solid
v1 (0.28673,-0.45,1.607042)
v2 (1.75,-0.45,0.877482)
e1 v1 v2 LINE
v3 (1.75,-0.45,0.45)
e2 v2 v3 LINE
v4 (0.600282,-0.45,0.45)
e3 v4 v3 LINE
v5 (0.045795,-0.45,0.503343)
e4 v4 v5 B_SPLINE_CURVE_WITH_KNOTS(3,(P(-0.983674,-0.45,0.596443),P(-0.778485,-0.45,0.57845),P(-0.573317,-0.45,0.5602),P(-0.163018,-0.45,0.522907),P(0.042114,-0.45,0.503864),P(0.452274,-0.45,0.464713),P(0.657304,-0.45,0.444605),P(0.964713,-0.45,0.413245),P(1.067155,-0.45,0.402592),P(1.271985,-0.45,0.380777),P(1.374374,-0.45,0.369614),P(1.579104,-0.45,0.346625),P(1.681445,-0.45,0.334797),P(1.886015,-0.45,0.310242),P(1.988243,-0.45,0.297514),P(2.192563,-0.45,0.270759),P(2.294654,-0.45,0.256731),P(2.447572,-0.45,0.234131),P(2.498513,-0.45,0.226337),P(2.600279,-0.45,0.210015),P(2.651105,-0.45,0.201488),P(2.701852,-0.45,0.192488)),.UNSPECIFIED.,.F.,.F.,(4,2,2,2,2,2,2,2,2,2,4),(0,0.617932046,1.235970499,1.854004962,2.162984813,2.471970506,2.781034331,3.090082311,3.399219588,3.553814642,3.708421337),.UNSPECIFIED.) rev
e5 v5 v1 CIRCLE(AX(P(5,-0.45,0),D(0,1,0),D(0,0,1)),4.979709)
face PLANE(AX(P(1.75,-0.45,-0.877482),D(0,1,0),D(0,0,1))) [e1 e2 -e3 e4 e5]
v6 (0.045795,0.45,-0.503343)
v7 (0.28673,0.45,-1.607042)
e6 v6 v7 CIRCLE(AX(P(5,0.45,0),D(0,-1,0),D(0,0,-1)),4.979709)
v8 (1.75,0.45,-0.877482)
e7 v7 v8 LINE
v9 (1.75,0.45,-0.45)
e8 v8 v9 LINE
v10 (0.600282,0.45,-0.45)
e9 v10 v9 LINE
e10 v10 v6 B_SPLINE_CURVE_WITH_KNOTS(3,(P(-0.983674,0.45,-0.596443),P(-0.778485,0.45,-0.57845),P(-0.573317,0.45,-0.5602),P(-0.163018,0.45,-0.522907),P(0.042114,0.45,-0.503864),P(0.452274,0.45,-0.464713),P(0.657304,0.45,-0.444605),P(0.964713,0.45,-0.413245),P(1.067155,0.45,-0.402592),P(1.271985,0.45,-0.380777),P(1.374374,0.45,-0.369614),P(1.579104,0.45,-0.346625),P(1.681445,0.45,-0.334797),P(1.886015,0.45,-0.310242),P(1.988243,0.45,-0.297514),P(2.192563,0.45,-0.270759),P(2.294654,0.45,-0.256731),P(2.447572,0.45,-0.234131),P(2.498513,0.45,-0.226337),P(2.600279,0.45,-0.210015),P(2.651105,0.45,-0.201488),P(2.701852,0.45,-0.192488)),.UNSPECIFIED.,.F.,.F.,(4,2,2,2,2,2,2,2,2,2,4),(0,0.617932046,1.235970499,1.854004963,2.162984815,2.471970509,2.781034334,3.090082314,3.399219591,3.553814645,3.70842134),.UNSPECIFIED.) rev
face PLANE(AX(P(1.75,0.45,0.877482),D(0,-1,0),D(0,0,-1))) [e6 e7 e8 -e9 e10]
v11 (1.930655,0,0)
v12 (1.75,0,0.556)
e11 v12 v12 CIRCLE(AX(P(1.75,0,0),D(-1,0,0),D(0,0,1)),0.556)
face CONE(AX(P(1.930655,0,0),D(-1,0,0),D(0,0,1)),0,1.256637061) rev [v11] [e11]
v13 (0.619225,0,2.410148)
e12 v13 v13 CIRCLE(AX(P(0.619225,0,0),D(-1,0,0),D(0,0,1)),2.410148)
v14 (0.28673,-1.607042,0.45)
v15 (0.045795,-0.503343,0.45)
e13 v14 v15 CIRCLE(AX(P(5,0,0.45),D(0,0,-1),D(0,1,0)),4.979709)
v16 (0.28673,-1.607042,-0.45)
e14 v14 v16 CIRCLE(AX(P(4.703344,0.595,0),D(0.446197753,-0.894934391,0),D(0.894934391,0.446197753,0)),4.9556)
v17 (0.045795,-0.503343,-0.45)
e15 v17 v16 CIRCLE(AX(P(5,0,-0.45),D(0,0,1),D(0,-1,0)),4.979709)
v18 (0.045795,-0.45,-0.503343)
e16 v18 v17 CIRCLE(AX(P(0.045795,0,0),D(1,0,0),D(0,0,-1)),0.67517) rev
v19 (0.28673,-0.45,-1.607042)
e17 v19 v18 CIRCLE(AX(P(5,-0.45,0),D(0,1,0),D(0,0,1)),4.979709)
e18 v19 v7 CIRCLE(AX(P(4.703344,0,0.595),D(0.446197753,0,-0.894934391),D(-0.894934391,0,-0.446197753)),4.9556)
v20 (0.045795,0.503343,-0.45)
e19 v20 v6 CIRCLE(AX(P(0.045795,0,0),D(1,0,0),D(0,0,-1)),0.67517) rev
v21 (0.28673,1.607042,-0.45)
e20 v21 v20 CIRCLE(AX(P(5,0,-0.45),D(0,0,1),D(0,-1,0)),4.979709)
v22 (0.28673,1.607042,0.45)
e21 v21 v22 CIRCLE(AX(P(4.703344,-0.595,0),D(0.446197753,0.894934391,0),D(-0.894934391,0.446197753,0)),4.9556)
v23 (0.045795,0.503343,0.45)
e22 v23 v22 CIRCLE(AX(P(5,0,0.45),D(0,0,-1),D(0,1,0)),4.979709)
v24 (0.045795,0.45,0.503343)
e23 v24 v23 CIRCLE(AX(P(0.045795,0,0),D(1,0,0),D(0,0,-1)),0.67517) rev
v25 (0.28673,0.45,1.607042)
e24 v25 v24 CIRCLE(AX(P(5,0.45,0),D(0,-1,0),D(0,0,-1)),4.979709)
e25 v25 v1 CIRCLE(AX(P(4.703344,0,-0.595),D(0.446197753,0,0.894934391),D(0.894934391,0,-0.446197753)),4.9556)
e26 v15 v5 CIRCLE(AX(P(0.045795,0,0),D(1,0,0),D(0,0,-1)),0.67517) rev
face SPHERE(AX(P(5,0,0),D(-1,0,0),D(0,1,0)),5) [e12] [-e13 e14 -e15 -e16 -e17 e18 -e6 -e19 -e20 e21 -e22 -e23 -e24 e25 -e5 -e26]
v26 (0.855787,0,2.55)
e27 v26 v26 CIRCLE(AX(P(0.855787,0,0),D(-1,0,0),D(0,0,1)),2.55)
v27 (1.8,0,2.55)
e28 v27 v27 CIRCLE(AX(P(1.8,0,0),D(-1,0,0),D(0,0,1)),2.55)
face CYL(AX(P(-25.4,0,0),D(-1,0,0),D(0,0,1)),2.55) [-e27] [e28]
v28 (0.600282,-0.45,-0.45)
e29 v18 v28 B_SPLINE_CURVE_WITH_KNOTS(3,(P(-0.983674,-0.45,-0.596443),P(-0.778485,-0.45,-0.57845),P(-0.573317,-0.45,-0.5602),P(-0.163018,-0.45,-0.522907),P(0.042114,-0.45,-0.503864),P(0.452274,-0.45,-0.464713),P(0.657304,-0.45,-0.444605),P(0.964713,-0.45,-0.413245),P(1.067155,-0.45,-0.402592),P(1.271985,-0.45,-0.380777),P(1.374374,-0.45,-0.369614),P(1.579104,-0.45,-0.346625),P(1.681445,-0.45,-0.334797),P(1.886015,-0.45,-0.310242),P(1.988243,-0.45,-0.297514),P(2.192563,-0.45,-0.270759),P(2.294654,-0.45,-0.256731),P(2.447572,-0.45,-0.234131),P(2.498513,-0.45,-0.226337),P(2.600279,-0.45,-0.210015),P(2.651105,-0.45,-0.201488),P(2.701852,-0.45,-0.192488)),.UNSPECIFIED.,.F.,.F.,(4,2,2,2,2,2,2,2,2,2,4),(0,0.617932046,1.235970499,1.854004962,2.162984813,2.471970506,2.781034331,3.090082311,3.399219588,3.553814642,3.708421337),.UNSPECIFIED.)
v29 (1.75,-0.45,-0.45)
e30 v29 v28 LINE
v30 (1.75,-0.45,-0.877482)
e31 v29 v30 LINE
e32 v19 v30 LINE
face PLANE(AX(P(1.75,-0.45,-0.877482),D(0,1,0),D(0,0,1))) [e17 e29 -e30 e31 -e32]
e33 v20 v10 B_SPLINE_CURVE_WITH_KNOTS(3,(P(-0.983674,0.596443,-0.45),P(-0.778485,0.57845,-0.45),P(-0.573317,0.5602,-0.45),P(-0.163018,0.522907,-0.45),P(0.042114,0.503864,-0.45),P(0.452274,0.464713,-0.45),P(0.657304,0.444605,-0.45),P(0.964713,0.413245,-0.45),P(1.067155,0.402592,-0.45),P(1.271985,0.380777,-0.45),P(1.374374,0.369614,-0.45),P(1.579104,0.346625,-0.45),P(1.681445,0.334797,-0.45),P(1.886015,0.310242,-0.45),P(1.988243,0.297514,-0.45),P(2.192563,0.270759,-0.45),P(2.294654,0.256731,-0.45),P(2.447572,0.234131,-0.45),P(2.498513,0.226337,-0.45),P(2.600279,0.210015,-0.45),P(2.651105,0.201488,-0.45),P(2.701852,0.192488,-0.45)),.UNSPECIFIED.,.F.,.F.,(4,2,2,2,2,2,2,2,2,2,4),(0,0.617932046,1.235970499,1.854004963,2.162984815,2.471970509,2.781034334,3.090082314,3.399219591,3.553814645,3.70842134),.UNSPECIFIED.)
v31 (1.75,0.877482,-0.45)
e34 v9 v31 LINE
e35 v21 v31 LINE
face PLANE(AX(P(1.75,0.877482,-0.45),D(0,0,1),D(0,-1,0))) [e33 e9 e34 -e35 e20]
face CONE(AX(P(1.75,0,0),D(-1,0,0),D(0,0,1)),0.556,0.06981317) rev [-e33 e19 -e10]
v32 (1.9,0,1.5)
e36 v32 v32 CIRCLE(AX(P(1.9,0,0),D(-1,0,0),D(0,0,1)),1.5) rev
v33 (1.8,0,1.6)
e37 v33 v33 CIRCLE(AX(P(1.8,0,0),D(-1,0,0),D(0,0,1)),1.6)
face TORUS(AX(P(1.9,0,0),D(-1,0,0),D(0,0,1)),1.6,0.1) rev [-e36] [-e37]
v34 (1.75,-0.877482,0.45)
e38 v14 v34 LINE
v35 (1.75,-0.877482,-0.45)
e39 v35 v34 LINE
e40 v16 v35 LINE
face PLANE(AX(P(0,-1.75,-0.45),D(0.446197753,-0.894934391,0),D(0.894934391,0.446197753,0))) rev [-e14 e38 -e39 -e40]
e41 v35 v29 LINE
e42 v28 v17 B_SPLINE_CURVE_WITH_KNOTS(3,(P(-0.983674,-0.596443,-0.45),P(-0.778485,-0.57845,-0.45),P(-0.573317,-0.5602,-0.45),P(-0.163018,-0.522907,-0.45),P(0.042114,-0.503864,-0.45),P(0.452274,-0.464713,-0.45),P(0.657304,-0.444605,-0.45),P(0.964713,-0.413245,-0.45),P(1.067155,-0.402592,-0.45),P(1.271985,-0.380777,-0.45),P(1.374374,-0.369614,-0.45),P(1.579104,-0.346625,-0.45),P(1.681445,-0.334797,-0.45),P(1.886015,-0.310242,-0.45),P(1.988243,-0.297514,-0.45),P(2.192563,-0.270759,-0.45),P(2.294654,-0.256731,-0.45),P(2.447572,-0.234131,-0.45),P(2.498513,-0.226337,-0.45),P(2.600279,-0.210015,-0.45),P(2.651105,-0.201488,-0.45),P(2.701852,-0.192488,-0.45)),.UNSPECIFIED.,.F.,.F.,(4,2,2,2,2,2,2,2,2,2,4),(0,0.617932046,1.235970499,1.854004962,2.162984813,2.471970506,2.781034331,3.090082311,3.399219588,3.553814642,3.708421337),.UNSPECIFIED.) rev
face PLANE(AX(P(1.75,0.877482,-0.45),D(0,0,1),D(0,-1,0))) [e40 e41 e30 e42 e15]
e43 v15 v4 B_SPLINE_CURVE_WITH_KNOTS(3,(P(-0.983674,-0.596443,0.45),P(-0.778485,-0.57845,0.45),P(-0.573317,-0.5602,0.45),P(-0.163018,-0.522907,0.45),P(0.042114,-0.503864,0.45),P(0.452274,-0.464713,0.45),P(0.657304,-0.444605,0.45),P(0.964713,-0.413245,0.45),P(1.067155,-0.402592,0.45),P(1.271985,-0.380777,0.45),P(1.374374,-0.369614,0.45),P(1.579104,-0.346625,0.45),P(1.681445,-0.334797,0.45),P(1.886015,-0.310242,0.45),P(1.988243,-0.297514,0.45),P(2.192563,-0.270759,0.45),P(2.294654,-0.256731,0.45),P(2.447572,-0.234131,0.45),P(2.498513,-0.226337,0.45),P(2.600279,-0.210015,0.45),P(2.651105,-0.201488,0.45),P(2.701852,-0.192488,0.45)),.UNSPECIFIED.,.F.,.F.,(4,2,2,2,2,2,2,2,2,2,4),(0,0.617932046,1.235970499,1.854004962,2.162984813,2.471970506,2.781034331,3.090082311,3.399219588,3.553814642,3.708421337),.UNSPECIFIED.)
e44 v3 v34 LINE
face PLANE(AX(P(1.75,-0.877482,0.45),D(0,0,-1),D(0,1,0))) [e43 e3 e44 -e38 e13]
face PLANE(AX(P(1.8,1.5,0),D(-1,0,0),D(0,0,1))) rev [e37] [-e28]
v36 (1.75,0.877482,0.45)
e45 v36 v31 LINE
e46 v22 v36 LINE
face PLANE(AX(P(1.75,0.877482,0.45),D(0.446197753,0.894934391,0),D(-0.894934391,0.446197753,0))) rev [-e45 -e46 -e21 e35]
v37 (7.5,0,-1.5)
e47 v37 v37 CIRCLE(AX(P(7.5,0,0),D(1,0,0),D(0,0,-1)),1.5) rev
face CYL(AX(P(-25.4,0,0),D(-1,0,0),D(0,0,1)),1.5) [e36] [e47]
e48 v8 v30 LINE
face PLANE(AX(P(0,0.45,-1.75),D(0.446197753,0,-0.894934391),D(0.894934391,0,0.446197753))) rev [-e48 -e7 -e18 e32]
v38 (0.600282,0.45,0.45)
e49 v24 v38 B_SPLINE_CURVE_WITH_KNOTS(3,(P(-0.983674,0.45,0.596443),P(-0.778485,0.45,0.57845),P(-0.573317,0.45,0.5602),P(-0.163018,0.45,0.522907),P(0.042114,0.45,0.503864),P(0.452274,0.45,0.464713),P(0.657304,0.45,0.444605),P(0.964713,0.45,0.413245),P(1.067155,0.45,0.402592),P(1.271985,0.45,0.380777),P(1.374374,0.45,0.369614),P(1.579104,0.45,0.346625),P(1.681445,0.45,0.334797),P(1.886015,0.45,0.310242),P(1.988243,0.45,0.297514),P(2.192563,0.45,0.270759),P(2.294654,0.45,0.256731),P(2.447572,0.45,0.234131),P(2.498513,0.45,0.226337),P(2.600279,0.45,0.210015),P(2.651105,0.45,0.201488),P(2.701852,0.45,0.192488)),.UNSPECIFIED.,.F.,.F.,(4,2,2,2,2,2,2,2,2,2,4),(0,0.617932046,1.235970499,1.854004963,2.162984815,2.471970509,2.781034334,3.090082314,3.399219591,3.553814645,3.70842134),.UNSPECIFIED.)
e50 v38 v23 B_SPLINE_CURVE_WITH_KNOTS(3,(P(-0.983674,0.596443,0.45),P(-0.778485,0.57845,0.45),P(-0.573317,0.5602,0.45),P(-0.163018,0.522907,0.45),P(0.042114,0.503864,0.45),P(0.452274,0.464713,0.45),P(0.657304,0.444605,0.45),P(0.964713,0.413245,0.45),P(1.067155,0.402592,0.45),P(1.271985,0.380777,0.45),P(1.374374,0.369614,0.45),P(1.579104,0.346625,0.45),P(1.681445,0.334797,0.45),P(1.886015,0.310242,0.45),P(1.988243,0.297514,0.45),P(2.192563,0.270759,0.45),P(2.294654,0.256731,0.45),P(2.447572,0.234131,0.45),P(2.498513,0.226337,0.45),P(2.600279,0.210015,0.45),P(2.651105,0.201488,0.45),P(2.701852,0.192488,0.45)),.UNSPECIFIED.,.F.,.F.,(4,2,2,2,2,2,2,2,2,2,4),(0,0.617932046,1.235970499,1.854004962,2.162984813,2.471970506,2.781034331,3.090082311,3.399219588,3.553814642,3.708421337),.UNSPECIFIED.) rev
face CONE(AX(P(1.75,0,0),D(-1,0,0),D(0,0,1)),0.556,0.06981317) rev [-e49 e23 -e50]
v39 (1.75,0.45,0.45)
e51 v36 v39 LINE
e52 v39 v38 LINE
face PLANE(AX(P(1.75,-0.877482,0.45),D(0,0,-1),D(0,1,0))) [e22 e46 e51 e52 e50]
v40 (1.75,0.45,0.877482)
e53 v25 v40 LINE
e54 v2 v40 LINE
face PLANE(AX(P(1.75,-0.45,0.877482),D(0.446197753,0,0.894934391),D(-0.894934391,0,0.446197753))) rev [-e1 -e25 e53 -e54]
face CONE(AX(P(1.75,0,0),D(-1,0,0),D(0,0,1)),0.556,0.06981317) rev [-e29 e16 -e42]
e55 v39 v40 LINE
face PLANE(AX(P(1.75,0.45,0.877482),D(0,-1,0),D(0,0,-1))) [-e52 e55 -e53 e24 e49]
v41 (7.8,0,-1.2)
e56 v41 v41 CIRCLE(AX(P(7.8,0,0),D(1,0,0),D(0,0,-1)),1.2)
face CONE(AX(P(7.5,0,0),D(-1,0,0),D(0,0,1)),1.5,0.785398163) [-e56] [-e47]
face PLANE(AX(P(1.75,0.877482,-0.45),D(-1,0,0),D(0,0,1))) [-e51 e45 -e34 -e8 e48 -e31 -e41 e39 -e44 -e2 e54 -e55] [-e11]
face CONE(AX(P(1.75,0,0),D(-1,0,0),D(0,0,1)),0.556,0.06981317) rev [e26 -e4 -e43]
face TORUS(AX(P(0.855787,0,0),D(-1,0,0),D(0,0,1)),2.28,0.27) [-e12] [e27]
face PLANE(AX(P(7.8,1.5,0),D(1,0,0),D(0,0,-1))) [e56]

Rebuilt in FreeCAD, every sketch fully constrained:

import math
import FreeCAD as App
import Part
import Sketcher

V = App.Vector
Q = App.Units.Quantity


def edges_at(feature, points):
    """Names of the edges that pass closest to the given points."""
    edges = feature.Shape.Edges
    near = lambda p: min(range(len(edges)), key=lambda i: edges[i].distToShape(Part.Vertex(*p))[0])
    return sorted({f"Edge{near(p) + 1}" for p in points})

doc = App.newDocument("Part")
body = doc.addObject("PartDesign::Body", "Body")

sketch1 = body.newObject("Sketcher::SketchObject", "Sketch")
sketch1.AttachmentSupport = (doc.getObject("XY_Plane"), [""])
sketch1.MapMode = "FlatFace"
sketch1.addGeometry(Part.LineSegment(V(1.8, 1.5, 0), V(1.8, 2.55, 0)), False)
sketch1.addGeometry(Part.LineSegment(V(1.8, 2.55, 0), V(0.855787, 2.55, 0)), False)
sketch1.addGeometry(Part.ArcOfCircle(Part.Circle(V(0.855787, 2.28, 0), V(0, 0, 1), 0.27), math.radians(90), math.radians(151.181957)), False)
sketch1.addGeometry(Part.ArcOfCircle(Part.Circle(V(5, 0, 0), V(0, 0, 1), 5), math.radians(151.181958), math.radians(180)), False)
sketch1.addGeometry(Part.LineSegment(V(0, 0, 0), V(7.8, 0, 0)), False)
sketch1.addGeometry(Part.LineSegment(V(7.8, 0, 0), V(7.8, 1.5, 0)), False)
sketch1.addGeometry(Part.LineSegment(V(7.8, 1.5, 0), V(1.8, 1.5, 0)), False)
sketch1.addConstraint(Sketcher.Constraint("Coincident", 0, 2, 1, 1))
sketch1.addConstraint(Sketcher.Constraint("Tangent", 1, 2, 2, 1))
sketch1.addConstraint(Sketcher.Constraint("Tangent", 2, 2, 3, 1))
sketch1.addConstraint(Sketcher.Constraint("Coincident", 3, 2, 4, 1))
sketch1.addConstraint(Sketcher.Constraint("Coincident", 4, 2, 5, 1))
sketch1.addConstraint(Sketcher.Constraint("Coincident", 5, 2, 6, 1))
sketch1.addConstraint(Sketcher.Constraint("Coincident", 6, 2, 0, 1))
sketch1.addConstraint(Sketcher.Constraint("Vertical", 0))
sketch1.addConstraint(Sketcher.Constraint("Horizontal", 1))
sketch1.addConstraint(Sketcher.Constraint("Horizontal", 4))
sketch1.addConstraint(Sketcher.Constraint("Vertical", 5))
sketch1.addConstraint(Sketcher.Constraint("Horizontal", 6))
sketch1.addConstraint(Sketcher.Constraint("Coincident", 3, 2, -1, 1))
sketch1.addConstraint(Sketcher.Constraint("PointOnObject", 3, 3, -1))
sketch1.addConstraint(Sketcher.Constraint("Radius", 3, Q("5 mm")))
sketch1.addConstraint(Sketcher.Constraint("DistanceX", 6, 2, 6, 1, Q("6 mm")))
sketch1.addConstraint(Sketcher.Constraint("Radius", 2, Q("0.27 mm")))
sketch1.addConstraint(Sketcher.Constraint("DistanceX", 4, 1, 4, 2, Q("7.8 mm")))
sketch1.addConstraint(Sketcher.Constraint("DistanceY", 5, 1, 5, 2, Q("1.5 mm")))
sketch1.addConstraint(Sketcher.Constraint("DistanceY", 0, 1, 0, 2, Q("1.05 mm")))
revolution = body.newObject("PartDesign::Revolution", "Revolution")
revolution.Profile = sketch1
revolution.ReferenceAxis = (sketch1, ["H_Axis"])
revolution.Angle = 360
doc.recompute()

fillet = body.newObject("PartDesign::Fillet", "Fillet")
fillet.Base = (revolution, edges_at(revolution, [(1.8, -1.5, 0)]))
fillet.Radius = 0.1

sketch2 = body.newObject("Sketcher::SketchObject", "Sketch001")
sketch2.AttachmentSupport = (doc.getObject("YZ_Plane"), [""])
sketch2.MapMode = "FlatFace"
sketch2.addGeometry(Part.LineSegment(V(1.75, 0.45, 0), V(-1.75, 0.45, 0)), False)
sketch2.addGeometry(Part.LineSegment(V(-1.75, 0.45, 0), V(-1.75, -0.45, 0)), False)
sketch2.addGeometry(Part.LineSegment(V(-1.75, -0.45, 0), V(1.75, -0.45, 0)), False)
sketch2.addGeometry(Part.LineSegment(V(1.75, -0.45, 0), V(1.75, 0.45, 0)), False)
sketch2.addConstraint(Sketcher.Constraint("Coincident", 0, 2, 1, 1))
sketch2.addConstraint(Sketcher.Constraint("Coincident", 1, 2, 2, 1))
sketch2.addConstraint(Sketcher.Constraint("Coincident", 2, 2, 3, 1))
sketch2.addConstraint(Sketcher.Constraint("Coincident", 3, 2, 0, 1))
sketch2.addConstraint(Sketcher.Constraint("Horizontal", 0))
sketch2.addConstraint(Sketcher.Constraint("Vertical", 1))
sketch2.addConstraint(Sketcher.Constraint("Horizontal", 2))
sketch2.addConstraint(Sketcher.Constraint("Vertical", 3))
sketch2.addConstraint(Sketcher.Constraint("Symmetric", 0, 2, 2, 2, -1, 1))
sketch2.addConstraint(Sketcher.Constraint("DistanceX", 0, 2, 0, 1, Q("3.5 mm")))
sketch2.addConstraint(Sketcher.Constraint("DistanceY", 1, 2, 1, 1, Q("0.9 mm")))

sketch3 = body.newObject("Sketcher::SketchObject", "Sketch002")
sketch3.AttachmentSupport = (doc.getObject("YZ_Plane"), [""])
sketch3.MapMode = "FlatFace"
sketch3.AttachmentOffset = App.Placement(V(0, 0, 1.75), App.Rotation())
sketch3.addGeometry(Part.LineSegment(V(0.877482, 0.45, 0), V(-0.877482, 0.45, 0)), False)
sketch3.addGeometry(Part.LineSegment(V(-0.877482, 0.45, 0), V(-0.877482, -0.45, 0)), False)
sketch3.addGeometry(Part.LineSegment(V(-0.877482, -0.45, 0), V(0.877482, -0.45, 0)), False)
sketch3.addGeometry(Part.LineSegment(V(0.877482, -0.45, 0), V(0.877482, 0.45, 0)), False)
sketch3.addConstraint(Sketcher.Constraint("Coincident", 0, 2, 1, 1))
sketch3.addConstraint(Sketcher.Constraint("Coincident", 1, 2, 2, 1))
sketch3.addConstraint(Sketcher.Constraint("Coincident", 2, 2, 3, 1))
sketch3.addConstraint(Sketcher.Constraint("Coincident", 3, 2, 0, 1))
sketch3.addConstraint(Sketcher.Constraint("Horizontal", 0))
sketch3.addConstraint(Sketcher.Constraint("Vertical", 1))
sketch3.addConstraint(Sketcher.Constraint("Horizontal", 2))
sketch3.addConstraint(Sketcher.Constraint("Vertical", 3))
sketch3.addConstraint(Sketcher.Constraint("Symmetric", 0, 2, 2, 2, -1, 1))
sketch3.addConstraint(Sketcher.Constraint("DistanceY", 1, 2, 1, 1, Q("0.9 mm")))
sketch3.addConstraint(Sketcher.Constraint("DistanceX", 0, 2, 0, 1, Q("1.754965 mm")))

subtractiveloft = body.newObject("PartDesign::SubtractiveLoft", "SubtractiveLoft")
subtractiveloft.Profile = sketch2
subtractiveloft.Sections = [sketch3]
doc.recompute()

polarpattern = body.newObject("PartDesign::PolarPattern", "PolarPattern")
polarpattern.Originals = [subtractiveloft]
polarpattern.Axis = (doc.getObject("X_Axis"), [""])
polarpattern.Angle = 90
polarpattern.Occurrences = 2
body.Tip = polarpattern

sketch4 = body.newObject("Sketcher::SketchObject", "Sketch003")
sketch4.AttachmentSupport = (doc.getObject("XY_Plane"), [""])
sketch4.MapMode = "FlatFace"
sketch4.addGeometry(Part.LineSegment(V(0, 0.678372, 0), V(0, 0, 0)), False)
sketch4.addGeometry(Part.LineSegment(V(0, 0, 0), V(1.930655, 0, 0)), False)
sketch4.addGeometry(Part.LineSegment(V(1.930655, 0, 0), V(1.75, 0.556, 0)), False)
sketch4.addGeometry(Part.LineSegment(V(1.75, 0.556, 0), V(0, 0.678372, 0)), False)
sketch4.addConstraint(Sketcher.Constraint("Coincident", 0, 2, 1, 1))
sketch4.addConstraint(Sketcher.Constraint("Coincident", 1, 2, 2, 1))
sketch4.addConstraint(Sketcher.Constraint("Coincident", 2, 2, 3, 1))
sketch4.addConstraint(Sketcher.Constraint("Coincident", 3, 2, 0, 1))
sketch4.addConstraint(Sketcher.Constraint("Vertical", 0))
sketch4.addConstraint(Sketcher.Constraint("Horizontal", 1))
sketch4.addConstraint(Sketcher.Constraint("Coincident", 0, 2, -1, 1))
sketch4.addConstraint(Sketcher.Constraint("Angle", 2, Q("108 deg")))
sketch4.addConstraint(Sketcher.Constraint("Angle", 3, Q("176 deg")))
sketch4.addConstraint(Sketcher.Constraint("DistanceX", -1, 1, 2, 2, Q("1.75 mm")))
sketch4.addConstraint(Sketcher.Constraint("DistanceY", -1, 1, 2, 2, Q("0.556 mm")))
groove = body.newObject("PartDesign::Groove", "Groove")
groove.Profile = sketch4
groove.ReferenceAxis = (sketch4, ["H_Axis"])
groove.Angle = 360
doc.recompute()

chamfer = body.newObject("PartDesign::Chamfer", "Chamfer")
chamfer.Base = (groove, edges_at(groove, [(7.8, -1.5, 0)]))
chamfer.Size = 0.3

doc.recompute()
